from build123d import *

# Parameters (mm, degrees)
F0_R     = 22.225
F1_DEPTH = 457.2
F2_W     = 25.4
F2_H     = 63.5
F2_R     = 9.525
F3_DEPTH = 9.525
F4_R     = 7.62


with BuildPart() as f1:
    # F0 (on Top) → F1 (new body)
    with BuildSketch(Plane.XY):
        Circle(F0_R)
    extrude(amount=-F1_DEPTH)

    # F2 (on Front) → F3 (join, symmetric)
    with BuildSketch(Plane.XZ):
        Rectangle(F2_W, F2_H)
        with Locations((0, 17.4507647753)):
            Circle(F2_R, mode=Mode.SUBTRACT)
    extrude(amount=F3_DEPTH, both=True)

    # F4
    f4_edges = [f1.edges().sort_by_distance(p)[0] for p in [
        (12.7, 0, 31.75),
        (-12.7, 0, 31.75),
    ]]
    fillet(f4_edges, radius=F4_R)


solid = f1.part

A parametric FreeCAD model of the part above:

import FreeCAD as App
import Part
import Sketcher

V = App.Vector
Q = App.Units.Quantity


def edges_at(feature, points):
    """Names of the edges that pass closest to the given points."""
    edges = feature.Shape.Edges
    near = lambda p: min(range(len(edges)), key=lambda i: edges[i].distToShape(Part.Vertex(*p))[0])
    return sorted({f"Edge{near(p) + 1}" for p in points})

doc = App.newDocument("Part")
params = doc.addObject("Spreadsheet::Sheet", "Params")
for row, (alias, value) in enumerate([
    ("sketch1_diameter", "1.75 in"),
    ("pad1_length", "18 in"),
    ("sketch2_diameter", "0.75 in"),
    ("sketch2_width", "1 in"),
    ("sketch2_height", "2.5 in"),
    ("pad2_length", "0.75 in"),
    ("fillet_radius", "0.3 in"),
], start=1):
    params.set(f"A{row}", alias)
    params.set(f"B{row}", "=" + value)
    params.setAlias(f"B{row}", alias)

body = doc.addObject("PartDesign::Body", "Body")

# Sketch on XY plane
sketch1 = body.newObject("Sketcher::SketchObject", "Sketch")
sketch1.AttachmentSupport = (doc.getObject("XY_Plane"), [""])
sketch1.MapMode = "FlatFace"
sketch1.addGeometry(Part.Circle(V(0, 0, 0), V(0, 0, 1), 22), False)
sketch1.addConstraint([
    Sketcher.Constraint("Coincident", 0, 3, -1, 1),
    Sketcher.Constraint("Diameter", 0, Q("1.75 in")),
])
sketch1.setExpression("Constraints[1]", "Params.sketch1_diameter")
pad1 = body.newObject("PartDesign::Pad", "Pad")
pad1.Profile = sketch1
pad1.setExpression("Length", "Params.pad1_length")
pad1.Reversed = True

# Sketch on XZ plane
sketch2 = body.newObject("Sketcher::SketchObject", "Sketch001")
sketch2.AttachmentSupport = (doc.getObject("XZ_Plane"), [""])
sketch2.MapMode = "FlatFace"
sketch2.addGeometry([
    Part.LineSegment(V(-13, 32, 0), V(-13, -32, 0)),  # 0
    Part.LineSegment(V(-13, -32, 0), V(13, -32, 0)),  # 1
    Part.LineSegment(V(13, -32, 0), V(13, 32, 0)),  # 2
    Part.LineSegment(V(13, 32, 0), V(-13, 32, 0)),  # 3
    Part.Circle(V(0, 17, 0), V(0, 0, 1), 10),  # 4
], False)
sketch2.addConstraint([
    Sketcher.Constraint("Coincident", 0, 2, 1, 1),
    Sketcher.Constraint("Coincident", 1, 2, 2, 1),
    Sketcher.Constraint("Coincident", 2, 2, 3, 1),
    Sketcher.Constraint("Coincident", 3, 2, 0, 1),
    Sketcher.Constraint("Vertical", 0),
    Sketcher.Constraint("Horizontal", 1),
    Sketcher.Constraint("Vertical", 2),
    Sketcher.Constraint("Horizontal", 3),
    Sketcher.Constraint("Symmetric", 0, 2, 2, 2, -1, 1),
    Sketcher.Constraint("PointOnObject", 4, 3, -2),
    Sketcher.Constraint("Diameter", 4, Q("0.75 in")),
    Sketcher.Constraint("DistanceX", 1, 1, 1, 2, Q("1 in")),
    Sketcher.Constraint("DistanceY", 0, 2, 0, 1, Q("2.5 in")),
    Sketcher.Constraint("DistanceY", -1, 1, 4, 3, 17.450765),
])
sketch2.setExpression("Constraints[10]", "Params.sketch2_diameter")
sketch2.setExpression("Constraints[11]", "Params.sketch2_width")
sketch2.setExpression("Constraints[12]", "Params.sketch2_height")
pad2 = body.newObject("PartDesign::Pad", "Pad001")
pad2.Profile = sketch2
pad2.setExpression("Length", "Params.pad2_length")
pad2.Midplane = True
doc.recompute()

fillet = body.newObject("PartDesign::Fillet", "Fillet")
fillet.Base = (pad2, edges_at(pad2, [(12.7, 0, 31.75), (-12.7, 0, 31.75)]))
fillet.setExpression("Radius", "Params.fillet_radius")

doc.recompute()
